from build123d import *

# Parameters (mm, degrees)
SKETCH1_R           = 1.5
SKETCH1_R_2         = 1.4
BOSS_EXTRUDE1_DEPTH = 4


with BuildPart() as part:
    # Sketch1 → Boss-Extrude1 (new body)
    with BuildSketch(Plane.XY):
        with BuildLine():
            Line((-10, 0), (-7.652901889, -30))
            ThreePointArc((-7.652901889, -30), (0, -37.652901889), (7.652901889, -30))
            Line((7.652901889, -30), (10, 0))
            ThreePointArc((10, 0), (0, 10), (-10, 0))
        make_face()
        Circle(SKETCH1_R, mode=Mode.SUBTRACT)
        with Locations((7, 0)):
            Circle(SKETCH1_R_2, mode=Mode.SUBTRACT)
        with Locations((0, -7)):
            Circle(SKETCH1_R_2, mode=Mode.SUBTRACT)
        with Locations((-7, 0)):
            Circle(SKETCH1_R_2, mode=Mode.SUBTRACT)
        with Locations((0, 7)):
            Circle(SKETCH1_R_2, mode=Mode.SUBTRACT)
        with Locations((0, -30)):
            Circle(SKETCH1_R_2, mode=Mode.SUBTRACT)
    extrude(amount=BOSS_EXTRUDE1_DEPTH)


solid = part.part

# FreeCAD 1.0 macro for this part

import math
import FreeCAD as App
import Part
import Sketcher

doc = App.newDocument("Part")
body = doc.addObject("PartDesign::Body", "Body")

# Sketch on XY plane
sketch1 = body.newObject("Sketcher::SketchObject", "Sketch")
sketch1.AttachmentSupport = (doc.getObject("XY_Plane"), [""])
sketch1.MapMode = "FlatFace"
sketch1.addGeometry([
    Part.LineSegment(App.Vector(-10, 0, 0), App.Vector(-7.7, -30, 0)),  # 0
    Part.ArcOfCircle(Part.Circle(App.Vector(0, -30, 0), App.Vector(0, 0, 1), 7.7), math.radians(180), math.radians(360)),  # 1
    Part.LineSegment(App.Vector(7.7, -30, 0), App.Vector(10, 0, 0)),  # 2
    Part.ArcOfCircle(Part.Circle(App.Vector(0, 0, 0), App.Vector(0, 0, 1), 10), math.radians(0), math.radians(180)),  # 3
    Part.Circle(App.Vector(0, -30, 0), App.Vector(0, 0, 1), 1.4),  # 4
    Part.Circle(App.Vector(-7, 0, 0), App.Vector(0, 0, 1), 1.4),  # 5
    Part.Circle(App.Vector(0, -7, 0), App.Vector(0, 0, 1), 1.4),  # 6
    Part.Circle(App.Vector(0, 0, 0), App.Vector(0, 0, 1), 1.5),  # 7
    Part.Circle(App.Vector(0, 7, 0), App.Vector(0, 0, 1), 1.4),  # 8
    Part.Circle(App.Vector(7, 0, 0), App.Vector(0, 0, 1), 1.4),  # 9
], False)
sketch1.addConstraint([
    Sketcher.Constraint("Coincident", 0, 2, 1, 1),
    Sketcher.Constraint("Coincident", 1, 2, 2, 1),
    Sketcher.Constraint("Coincident", 2, 2, 3, 1),
    Sketcher.Constraint("Coincident", 3, 2, 0, 1),
    Sketcher.Constraint("Coincident", 3, 3, -1, 1),
    Sketcher.Constraint("Coincident", 7, 3, -1, 1),
    Sketcher.Constraint("Coincident", 4, 3, 1, 3),
    Sketcher.Constraint("Equal", 4, 5),
    Sketcher.Constraint("Equal", 5, 6),
    Sketcher.Constraint("Equal", 6, 8),
    Sketcher.Constraint("Equal", 8, 9),
    Sketcher.Constraint("Symmetric", 6, 3, 8, 3, -1, 1),
    Sketcher.Constraint("Symmetric", 5, 3, 9, 3, -1, 1),
    Sketcher.Constraint("Symmetric", 0, 2, 1, 2, -2),
    Sketcher.Constraint("PointOnObject", 5, 3, -1),
    Sketcher.Constraint("PointOnObject", 6, 3, -2),
    Sketcher.Constraint("PointOnObject", 2, 2, -1),
    Sketcher.Constraint("PointOnObject", 3, 2, -1),
    Sketcher.Constraint("Horizontal", 4, 3, 0, 2),
    Sketcher.Constraint("Diameter", 7, 3.0),
    Sketcher.Constraint("Radius", 3, 10.0),
    Sketcher.Constraint("Diameter", 4, 2.8),
    Sketcher.Constraint("DistanceY", 1, 3, -1, 1, 30.0),
    Sketcher.Constraint("DistanceX", 5, 3, -1, 1, 7.0),
    Sketcher.Constraint("DistanceY", 6, 3, -1, 1, 7.0),
    Sketcher.Constraint("Radius", 1, 7.652902),
])
pad1 = body.newObject("PartDesign::Pad", "Pad")
pad1.Profile = sketch1
pad1.Length = 4

doc.recompute()
